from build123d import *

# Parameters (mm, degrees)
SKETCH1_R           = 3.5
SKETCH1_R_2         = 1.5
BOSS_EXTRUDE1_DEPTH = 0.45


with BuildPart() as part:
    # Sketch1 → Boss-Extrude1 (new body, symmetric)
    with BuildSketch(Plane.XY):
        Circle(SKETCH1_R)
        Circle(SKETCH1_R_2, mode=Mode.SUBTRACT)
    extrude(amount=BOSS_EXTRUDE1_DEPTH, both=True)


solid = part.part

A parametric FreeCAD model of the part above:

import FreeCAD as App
import Part
import Sketcher

V = App.Vector

doc = App.newDocument("Part")
body = doc.addObject("PartDesign::Body", "Body")

sketch1 = body.newObject("Sketcher::SketchObject", "Sketch")
sketch1.AttachmentSupport = (doc.getObject("XY_Plane"), [""])
sketch1.MapMode = "FlatFace"
sketch1.addGeometry(Part.Circle(V(0, 0, 0), V(0, 0, 1), 3.5), False)
sketch1.addGeometry(Part.Circle(V(0, 0, 0), V(0, 0, 1), 1.5), False)
sketch1.addConstraint(Sketcher.Constraint("Coincident", 0, 3, -1, 1))
sketch1.addConstraint(Sketcher.Constraint("Coincident", 1, 3, -1, 1))
sketch1.addConstraint(Sketcher.Constraint("Diameter", 0, 7.0))
sketch1.addConstraint(Sketcher.Constraint("Diameter", 1, 3.0))
pad1 = body.newObject("PartDesign::Pad", "Pad")
pad1.Profile = sketch1
pad1.Length = 0.9
pad1.Midplane = True

doc.recompute()
